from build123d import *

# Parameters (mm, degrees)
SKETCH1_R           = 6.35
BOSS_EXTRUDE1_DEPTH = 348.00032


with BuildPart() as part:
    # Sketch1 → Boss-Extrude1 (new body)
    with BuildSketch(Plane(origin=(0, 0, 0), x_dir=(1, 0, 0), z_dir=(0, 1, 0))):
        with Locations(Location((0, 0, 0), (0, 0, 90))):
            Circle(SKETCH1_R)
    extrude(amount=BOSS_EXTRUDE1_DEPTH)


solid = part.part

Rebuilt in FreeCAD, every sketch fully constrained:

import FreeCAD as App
import Part
import Sketcher
from FreeCAD import Vector
Q = App.Units.Quantity

doc = App.newDocument("Part")
body = doc.addObject("PartDesign::Body", "Body")

# Sketch on XZ plane
sketch1 = body.newObject("Sketcher::SketchObject", "Sketch")
sketch1.AttachmentSupport = (doc.getObject("XZ_Plane"), [""])
sketch1.MapMode = "FlatFace"
sketch1.addGeometry(Part.Circle(Vector(0, 0, 0), Vector(0, 0, 1), 6), False)
sketch1.addConstraint([
    Sketcher.Constraint("Coincident", 0, 3, -1, 1),
    Sketcher.Constraint("Diameter", 0, Q("0.5 in")),
])
pad1 = body.newObject("PartDesign::Pad", "Pad")
pad1.Profile = sketch1
pad1.Length = Q("13.7008 in")
pad1.Reversed = True

doc.recompute()
